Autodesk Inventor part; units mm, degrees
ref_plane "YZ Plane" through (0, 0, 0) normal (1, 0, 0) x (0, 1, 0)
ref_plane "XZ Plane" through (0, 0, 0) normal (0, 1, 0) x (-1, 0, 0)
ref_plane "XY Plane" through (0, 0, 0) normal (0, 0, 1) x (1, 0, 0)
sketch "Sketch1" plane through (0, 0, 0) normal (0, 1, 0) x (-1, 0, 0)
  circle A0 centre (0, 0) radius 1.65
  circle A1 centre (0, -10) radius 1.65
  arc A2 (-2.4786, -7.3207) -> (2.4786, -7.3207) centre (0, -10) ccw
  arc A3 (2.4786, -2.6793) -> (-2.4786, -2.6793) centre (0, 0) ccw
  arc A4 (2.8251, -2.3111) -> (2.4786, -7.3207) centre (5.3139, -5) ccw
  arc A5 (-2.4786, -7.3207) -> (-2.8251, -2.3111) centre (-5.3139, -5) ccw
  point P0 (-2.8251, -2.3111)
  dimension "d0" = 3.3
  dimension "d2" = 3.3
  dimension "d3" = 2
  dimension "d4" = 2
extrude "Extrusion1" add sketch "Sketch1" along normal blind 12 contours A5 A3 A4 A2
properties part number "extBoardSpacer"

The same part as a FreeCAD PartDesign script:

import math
import FreeCAD as App
import Part
import Sketcher

V = App.Vector

doc = App.newDocument("Part")
body = doc.addObject("PartDesign::Body", "Body")

# Sketch on XZ plane
sketch1 = body.newObject("Sketcher::SketchObject", "Sketch")
sketch1.AttachmentSupport = (doc.getObject("XZ_Plane"), [""])
sketch1.MapMode = "FlatFace"
sketch1.addGeometry(Part.ArcOfCircle(Part.Circle(V(5.3, -5, 0), V(0, 0, 1), 3.7), math.radians(133), math.radians(219)), False)
sketch1.addGeometry(Part.ArcOfCircle(Part.Circle(V(0, -10, 0), V(0, 0, 1), 3.6), math.radians(133), math.radians(407)), False)
sketch1.addGeometry(Part.ArcOfCircle(Part.Circle(V(-5.3, -5, 0), V(0, 0, 1), 3.7), math.radians(-39), math.radians(47)), False)
sketch1.addGeometry(Part.ArcOfCircle(Part.Circle(V(0, 0, 0), V(0, 0, 1), 3.6), math.radians(-39), math.radians(219)), False)
sketch1.addGeometry(Part.Circle(V(0, -10, 0), V(0, 0, 1), 1.6), False)
sketch1.addGeometry(Part.Circle(V(0, 0, 0), V(0, 0, 1), 1.6), False)
sketch1.addConstraint(Sketcher.Constraint("Coincident", 0, 2, 1, 2))
sketch1.addConstraint(Sketcher.Constraint("Coincident", 1, 1, 2, 1))
sketch1.addConstraint(Sketcher.Constraint("Coincident", 2, 2, 3, 2))
sketch1.addConstraint(Sketcher.Constraint("Coincident", 3, 1, 0, 1))
sketch1.addConstraint(Sketcher.Constraint("Coincident", 3, 3, -1, 1))
sketch1.addConstraint(Sketcher.Constraint("Coincident", 5, 3, -1, 1))
sketch1.addConstraint(Sketcher.Constraint("Coincident", 4, 3, 1, 3))
sketch1.addConstraint(Sketcher.Constraint("Equal", 0, 2))
sketch1.addConstraint(Sketcher.Constraint("Equal", 1, 3))
sketch1.addConstraint(Sketcher.Constraint("Equal", 4, 5))
sketch1.addConstraint(Sketcher.Constraint("Symmetric", 0, 3, 2, 3, -2))
sketch1.addConstraint(Sketcher.Constraint("PointOnObject", 1, 3, -2))
sketch1.addConstraint(Sketcher.Constraint("Diameter", 4, 3.3))
sketch1.addConstraint(Sketcher.Constraint("Radius", 1, 3.65))
sketch1.addConstraint(Sketcher.Constraint("DistanceY", 0, 3, -1, 1, 5.0))
sketch1.addConstraint(Sketcher.Constraint("DistanceY", 1, 3, -1, 1, 10.0))
sketch1.addConstraint(Sketcher.Constraint("Radius", 0, 3.664))
sketch1.addConstraint(Sketcher.Constraint("DistanceX", -1, 1, 0, 3, 5.314))
pad1 = body.newObject("PartDesign::Pad", "Pad")
pad1.Profile = sketch1
pad1.Length = 12
pad1.Reversed = True

doc.recompute()
